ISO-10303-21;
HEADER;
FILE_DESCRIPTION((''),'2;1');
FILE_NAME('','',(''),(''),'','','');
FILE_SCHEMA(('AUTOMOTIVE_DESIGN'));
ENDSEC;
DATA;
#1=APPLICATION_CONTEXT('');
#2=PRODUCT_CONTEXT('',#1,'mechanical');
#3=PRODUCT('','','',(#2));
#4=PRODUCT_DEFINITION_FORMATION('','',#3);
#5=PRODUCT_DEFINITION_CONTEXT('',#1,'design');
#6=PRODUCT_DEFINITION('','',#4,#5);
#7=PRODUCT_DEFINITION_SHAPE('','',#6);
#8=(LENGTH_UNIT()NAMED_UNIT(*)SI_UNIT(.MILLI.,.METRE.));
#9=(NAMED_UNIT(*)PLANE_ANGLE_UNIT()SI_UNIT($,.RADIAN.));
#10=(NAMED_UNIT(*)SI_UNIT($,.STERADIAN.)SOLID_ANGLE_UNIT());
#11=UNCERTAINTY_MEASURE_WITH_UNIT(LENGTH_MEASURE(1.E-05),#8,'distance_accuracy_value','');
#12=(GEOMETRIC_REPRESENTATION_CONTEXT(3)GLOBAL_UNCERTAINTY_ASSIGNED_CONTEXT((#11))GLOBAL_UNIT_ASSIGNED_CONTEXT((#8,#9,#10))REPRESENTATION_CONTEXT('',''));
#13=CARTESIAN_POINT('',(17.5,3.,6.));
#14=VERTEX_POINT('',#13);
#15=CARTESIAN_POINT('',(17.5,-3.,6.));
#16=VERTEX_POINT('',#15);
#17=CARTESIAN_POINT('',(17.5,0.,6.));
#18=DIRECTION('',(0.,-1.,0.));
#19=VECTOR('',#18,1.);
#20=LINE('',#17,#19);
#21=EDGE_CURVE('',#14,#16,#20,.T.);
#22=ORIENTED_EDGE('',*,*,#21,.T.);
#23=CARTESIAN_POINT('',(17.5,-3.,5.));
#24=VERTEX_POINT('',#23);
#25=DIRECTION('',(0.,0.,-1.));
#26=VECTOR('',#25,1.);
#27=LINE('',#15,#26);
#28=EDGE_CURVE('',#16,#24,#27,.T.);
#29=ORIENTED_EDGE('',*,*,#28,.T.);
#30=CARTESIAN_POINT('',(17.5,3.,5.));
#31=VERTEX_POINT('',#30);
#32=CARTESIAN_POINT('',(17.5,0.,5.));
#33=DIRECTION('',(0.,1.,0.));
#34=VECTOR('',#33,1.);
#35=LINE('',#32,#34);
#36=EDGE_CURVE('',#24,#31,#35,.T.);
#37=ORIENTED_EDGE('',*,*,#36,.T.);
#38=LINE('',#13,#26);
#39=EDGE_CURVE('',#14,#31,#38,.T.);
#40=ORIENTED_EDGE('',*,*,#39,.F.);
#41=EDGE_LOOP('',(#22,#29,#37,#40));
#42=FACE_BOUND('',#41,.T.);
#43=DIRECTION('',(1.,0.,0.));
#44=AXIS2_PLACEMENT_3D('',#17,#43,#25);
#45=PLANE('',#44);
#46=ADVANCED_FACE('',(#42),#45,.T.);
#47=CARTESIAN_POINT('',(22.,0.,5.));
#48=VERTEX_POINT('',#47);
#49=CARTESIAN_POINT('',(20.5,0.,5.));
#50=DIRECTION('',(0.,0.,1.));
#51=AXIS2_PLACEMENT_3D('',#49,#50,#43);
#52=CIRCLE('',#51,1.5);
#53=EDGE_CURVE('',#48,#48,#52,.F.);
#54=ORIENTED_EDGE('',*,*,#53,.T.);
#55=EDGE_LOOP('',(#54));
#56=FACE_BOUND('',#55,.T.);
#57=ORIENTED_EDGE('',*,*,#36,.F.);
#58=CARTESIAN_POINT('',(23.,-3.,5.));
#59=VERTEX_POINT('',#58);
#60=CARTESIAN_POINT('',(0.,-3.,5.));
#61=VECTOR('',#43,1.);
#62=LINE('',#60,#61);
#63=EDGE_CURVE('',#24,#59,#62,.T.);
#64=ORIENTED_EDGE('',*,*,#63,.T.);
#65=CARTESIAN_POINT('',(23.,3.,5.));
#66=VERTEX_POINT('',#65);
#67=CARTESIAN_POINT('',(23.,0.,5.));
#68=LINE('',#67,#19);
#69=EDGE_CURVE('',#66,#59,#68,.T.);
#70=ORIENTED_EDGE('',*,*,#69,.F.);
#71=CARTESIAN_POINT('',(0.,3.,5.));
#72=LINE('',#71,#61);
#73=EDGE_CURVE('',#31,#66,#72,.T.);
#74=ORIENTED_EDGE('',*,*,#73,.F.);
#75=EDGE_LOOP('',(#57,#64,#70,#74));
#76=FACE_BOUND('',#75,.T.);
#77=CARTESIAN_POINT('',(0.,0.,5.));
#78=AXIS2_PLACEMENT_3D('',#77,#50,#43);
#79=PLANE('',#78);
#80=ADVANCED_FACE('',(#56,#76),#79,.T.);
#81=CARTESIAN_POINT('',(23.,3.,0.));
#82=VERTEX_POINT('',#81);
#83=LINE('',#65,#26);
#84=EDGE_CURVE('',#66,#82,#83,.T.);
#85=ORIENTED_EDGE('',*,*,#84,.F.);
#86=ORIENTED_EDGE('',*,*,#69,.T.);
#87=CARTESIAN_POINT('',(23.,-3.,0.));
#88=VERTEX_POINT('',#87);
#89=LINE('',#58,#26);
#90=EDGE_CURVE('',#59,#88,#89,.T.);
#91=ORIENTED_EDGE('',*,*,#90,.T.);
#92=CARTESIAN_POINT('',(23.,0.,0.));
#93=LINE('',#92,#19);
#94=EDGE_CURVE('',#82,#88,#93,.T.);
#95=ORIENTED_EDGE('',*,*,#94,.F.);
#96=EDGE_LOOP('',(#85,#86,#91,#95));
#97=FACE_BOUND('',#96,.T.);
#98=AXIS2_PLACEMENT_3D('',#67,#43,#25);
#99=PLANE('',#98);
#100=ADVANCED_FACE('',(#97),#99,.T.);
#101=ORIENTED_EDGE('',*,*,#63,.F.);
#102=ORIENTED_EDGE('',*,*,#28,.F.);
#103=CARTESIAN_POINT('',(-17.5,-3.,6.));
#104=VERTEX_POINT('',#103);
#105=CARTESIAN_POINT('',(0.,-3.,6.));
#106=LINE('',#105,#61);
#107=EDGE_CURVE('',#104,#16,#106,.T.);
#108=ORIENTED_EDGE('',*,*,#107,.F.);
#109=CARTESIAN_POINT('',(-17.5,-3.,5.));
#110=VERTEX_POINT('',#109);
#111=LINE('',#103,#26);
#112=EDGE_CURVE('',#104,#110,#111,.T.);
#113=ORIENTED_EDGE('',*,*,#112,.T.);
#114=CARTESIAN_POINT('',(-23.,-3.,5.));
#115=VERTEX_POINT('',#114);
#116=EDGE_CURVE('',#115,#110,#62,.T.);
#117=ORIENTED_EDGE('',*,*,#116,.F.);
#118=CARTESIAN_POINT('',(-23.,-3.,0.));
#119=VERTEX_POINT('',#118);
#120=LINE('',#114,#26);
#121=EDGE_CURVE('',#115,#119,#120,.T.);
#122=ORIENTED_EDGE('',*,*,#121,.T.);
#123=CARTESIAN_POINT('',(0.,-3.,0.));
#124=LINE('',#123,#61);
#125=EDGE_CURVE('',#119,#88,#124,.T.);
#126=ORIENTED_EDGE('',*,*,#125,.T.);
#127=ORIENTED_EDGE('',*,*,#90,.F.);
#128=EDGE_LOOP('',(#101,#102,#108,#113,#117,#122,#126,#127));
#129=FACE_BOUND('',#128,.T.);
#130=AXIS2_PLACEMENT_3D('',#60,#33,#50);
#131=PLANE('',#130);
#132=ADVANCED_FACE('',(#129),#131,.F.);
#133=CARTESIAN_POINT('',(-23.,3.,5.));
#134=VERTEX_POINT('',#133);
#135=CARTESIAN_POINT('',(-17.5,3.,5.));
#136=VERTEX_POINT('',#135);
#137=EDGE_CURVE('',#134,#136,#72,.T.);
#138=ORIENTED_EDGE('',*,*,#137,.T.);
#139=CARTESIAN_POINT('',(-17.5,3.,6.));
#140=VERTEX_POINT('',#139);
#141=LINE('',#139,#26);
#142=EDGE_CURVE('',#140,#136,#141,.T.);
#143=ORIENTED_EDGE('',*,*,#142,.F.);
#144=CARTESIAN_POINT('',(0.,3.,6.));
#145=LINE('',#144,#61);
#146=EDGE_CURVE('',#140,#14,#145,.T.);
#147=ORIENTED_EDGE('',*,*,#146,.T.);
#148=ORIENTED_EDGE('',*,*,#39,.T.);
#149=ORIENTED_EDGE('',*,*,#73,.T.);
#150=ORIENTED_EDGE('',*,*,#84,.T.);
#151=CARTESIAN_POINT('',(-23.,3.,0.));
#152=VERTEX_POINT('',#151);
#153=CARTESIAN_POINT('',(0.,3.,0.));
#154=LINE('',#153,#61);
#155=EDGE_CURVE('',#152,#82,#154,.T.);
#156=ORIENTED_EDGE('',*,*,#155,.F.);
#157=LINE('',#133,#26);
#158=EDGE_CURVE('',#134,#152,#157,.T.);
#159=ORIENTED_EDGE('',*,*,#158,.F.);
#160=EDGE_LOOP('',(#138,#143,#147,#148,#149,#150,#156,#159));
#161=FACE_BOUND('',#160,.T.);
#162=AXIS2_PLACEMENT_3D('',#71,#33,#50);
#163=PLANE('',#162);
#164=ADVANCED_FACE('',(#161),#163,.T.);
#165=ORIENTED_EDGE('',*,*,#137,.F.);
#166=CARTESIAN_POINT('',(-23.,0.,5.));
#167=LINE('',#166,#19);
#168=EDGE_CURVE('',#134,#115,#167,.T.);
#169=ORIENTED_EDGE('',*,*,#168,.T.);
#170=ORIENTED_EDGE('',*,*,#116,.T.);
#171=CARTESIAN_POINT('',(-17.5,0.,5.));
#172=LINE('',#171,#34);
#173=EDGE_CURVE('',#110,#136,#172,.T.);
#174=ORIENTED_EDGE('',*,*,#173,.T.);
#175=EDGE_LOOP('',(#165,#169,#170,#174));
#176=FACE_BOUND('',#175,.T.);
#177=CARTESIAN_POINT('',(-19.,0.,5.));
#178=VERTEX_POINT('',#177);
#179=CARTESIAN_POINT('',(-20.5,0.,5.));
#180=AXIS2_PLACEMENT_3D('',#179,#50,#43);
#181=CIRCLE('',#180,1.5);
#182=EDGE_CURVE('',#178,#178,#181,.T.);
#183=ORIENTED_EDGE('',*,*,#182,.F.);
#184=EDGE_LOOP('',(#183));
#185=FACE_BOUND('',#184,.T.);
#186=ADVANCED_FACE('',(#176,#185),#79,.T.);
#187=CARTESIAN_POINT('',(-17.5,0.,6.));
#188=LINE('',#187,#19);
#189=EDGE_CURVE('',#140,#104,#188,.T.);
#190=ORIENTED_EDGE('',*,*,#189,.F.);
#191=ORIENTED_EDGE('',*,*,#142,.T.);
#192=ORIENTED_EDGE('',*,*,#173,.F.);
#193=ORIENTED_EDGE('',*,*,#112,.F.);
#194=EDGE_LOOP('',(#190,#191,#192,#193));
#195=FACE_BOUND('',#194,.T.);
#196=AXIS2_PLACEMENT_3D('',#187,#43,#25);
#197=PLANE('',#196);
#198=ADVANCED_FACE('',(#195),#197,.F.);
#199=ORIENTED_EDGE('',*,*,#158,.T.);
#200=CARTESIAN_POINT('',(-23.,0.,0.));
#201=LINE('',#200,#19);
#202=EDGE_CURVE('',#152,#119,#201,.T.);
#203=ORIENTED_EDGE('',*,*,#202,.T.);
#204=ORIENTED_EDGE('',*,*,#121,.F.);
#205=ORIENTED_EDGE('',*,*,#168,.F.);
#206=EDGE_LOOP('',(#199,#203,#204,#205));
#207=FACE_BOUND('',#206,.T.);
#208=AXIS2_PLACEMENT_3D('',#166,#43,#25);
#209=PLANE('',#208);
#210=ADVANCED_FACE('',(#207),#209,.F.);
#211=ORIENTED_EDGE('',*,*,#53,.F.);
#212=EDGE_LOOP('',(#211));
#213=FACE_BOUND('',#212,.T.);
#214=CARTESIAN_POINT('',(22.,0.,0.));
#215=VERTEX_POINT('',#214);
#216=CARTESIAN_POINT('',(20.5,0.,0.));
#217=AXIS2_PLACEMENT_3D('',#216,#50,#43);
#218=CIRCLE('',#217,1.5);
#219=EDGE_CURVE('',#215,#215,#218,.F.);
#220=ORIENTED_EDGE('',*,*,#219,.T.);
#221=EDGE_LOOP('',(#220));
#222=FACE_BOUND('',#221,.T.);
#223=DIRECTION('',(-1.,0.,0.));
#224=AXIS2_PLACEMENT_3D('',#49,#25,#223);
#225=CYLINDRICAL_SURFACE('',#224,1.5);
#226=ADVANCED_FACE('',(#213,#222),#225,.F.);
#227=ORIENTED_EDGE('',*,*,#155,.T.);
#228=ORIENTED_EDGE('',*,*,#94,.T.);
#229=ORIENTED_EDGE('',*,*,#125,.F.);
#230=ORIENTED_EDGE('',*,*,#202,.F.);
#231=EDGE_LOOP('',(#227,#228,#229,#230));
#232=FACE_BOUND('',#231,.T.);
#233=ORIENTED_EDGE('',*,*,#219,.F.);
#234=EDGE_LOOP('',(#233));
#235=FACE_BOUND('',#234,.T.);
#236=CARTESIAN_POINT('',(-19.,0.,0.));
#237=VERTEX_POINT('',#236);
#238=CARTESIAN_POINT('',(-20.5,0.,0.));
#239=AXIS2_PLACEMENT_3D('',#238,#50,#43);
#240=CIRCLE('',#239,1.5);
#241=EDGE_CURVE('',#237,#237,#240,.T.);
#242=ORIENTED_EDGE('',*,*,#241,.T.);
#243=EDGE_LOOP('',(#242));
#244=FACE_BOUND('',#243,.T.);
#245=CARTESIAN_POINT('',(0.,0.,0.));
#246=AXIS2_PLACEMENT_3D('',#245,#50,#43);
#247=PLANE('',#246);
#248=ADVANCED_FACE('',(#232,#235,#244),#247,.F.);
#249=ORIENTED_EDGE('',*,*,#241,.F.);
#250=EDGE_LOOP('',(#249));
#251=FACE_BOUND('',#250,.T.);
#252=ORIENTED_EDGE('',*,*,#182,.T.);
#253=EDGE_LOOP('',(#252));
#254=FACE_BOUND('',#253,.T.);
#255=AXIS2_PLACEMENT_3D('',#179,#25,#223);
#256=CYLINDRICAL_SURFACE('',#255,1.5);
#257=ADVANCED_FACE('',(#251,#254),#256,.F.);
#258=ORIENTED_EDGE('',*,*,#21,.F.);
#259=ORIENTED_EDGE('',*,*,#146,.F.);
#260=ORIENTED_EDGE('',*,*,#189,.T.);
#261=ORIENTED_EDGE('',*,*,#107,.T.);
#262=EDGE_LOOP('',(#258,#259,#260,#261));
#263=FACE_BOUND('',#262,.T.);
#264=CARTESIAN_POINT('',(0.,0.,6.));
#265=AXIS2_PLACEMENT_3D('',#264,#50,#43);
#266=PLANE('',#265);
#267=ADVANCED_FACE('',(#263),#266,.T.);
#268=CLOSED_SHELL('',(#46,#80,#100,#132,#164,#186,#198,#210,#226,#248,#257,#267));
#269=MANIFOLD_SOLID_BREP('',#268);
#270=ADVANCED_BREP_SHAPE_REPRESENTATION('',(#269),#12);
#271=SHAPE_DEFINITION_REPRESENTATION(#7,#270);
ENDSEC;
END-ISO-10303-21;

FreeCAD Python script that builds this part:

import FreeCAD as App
import Part
import Sketcher

doc = App.newDocument("Part")
body = doc.addObject("PartDesign::Body", "Body")

# Sketch on XY plane
sketch1 = body.newObject("Sketcher::SketchObject", "Sketch")
sketch1.AttachmentSupport = (doc.getObject("XY_Plane"), [""])
sketch1.MapMode = "FlatFace"
sketch1.addGeometry(Part.LineSegment(App.Vector(-23, 3, 0), App.Vector(-23, -3, 0)), False)
sketch1.addGeometry(Part.LineSegment(App.Vector(-23, -3, 0), App.Vector(23, -3, 0)), False)
sketch1.addGeometry(Part.LineSegment(App.Vector(23, -3, 0), App.Vector(23, 3, 0)), False)
sketch1.addGeometry(Part.LineSegment(App.Vector(23, 3, 0), App.Vector(-23, 3, 0)), False)
sketch1.addGeometry(Part.Circle(App.Vector(-20.5, 0, 0), App.Vector(0, 0, 1), 1.5), False)
sketch1.addGeometry(Part.Circle(App.Vector(20.5, 0, 0), App.Vector(0, 0, 1), 1.5), False)
sketch1.addConstraint(Sketcher.Constraint("Coincident", 0, 2, 1, 1))
sketch1.addConstraint(Sketcher.Constraint("Coincident", 1, 2, 2, 1))
sketch1.addConstraint(Sketcher.Constraint("Coincident", 2, 2, 3, 1))
sketch1.addConstraint(Sketcher.Constraint("Coincident", 3, 2, 0, 1))
sketch1.addConstraint(Sketcher.Constraint("Vertical", 0))
sketch1.addConstraint(Sketcher.Constraint("Horizontal", 1))
sketch1.addConstraint(Sketcher.Constraint("Vertical", 2))
sketch1.addConstraint(Sketcher.Constraint("Horizontal", 3))
sketch1.addConstraint(Sketcher.Constraint("Equal", 4, 5))
sketch1.addConstraint(Sketcher.Constraint("Symmetric", 4, 3, 5, 3, -1, 1))
sketch1.addConstraint(Sketcher.Constraint("Symmetric", 0, 2, 2, 2, -1, 1))
sketch1.addConstraint(Sketcher.Constraint("PointOnObject", 4, 3, -1))
sketch1.addConstraint(Sketcher.Constraint("Diameter", 4, 3.0))
sketch1.addConstraint(Sketcher.Constraint("DistanceX", 1, 1, 1, 2, 46.0))
sketch1.addConstraint(Sketcher.Constraint("DistanceY", 0, 2, 0, 1, 6.0))
sketch1.addConstraint(Sketcher.Constraint("DistanceX", 4, 3, 5, 3, 41.0))
pad1 = body.newObject("PartDesign::Pad", "Pad")
pad1.Profile = sketch1
pad1.Length = 5

# Sketch on XY plane
sketch2 = body.newObject("Sketcher::SketchObject", "Sketch001")
sketch2.AttachmentSupport = (doc.getObject("XY_Plane"), [""])
sketch2.MapMode = "FlatFace"
sketch2.addGeometry(Part.LineSegment(App.Vector(-18, 3, 0), App.Vector(-18, -3, 0)), False)
sketch2.addGeometry(Part.LineSegment(App.Vector(-18, -3, 0), App.Vector(18, -3, 0)), False)
sketch2.addGeometry(Part.LineSegment(App.Vector(18, -3, 0), App.Vector(18, 3, 0)), False)
sketch2.addGeometry(Part.LineSegment(App.Vector(18, 3, 0), App.Vector(-18, 3, 0)), False)
sketch2.addConstraint(Sketcher.Constraint("Coincident", 0, 2, 1, 1))
sketch2.addConstraint(Sketcher.Constraint("Coincident", 1, 2, 2, 1))
sketch2.addConstraint(Sketcher.Constraint("Coincident", 2, 2, 3, 1))
sketch2.addConstraint(Sketcher.Constraint("Coincident", 3, 2, 0, 1))
sketch2.addConstraint(Sketcher.Constraint("Vertical", 0))
sketch2.addConstraint(Sketcher.Constraint("Horizontal", 1))
sketch2.addConstraint(Sketcher.Constraint("Vertical", 2))
sketch2.addConstraint(Sketcher.Constraint("Horizontal", 3))
sketch2.addConstraint(Sketcher.Constraint("Symmetric", 0, 2, 2, 2, -1, 1))
sketch2.addConstraint(Sketcher.Constraint("DistanceX", 1, 1, 1, 2, 35.0))
sketch2.addConstraint(Sketcher.Constraint("DistanceY", 0, 2, 0, 1, 6.0))
pad2 = body.newObject("PartDesign::Pad", "Pad001")
pad2.Profile = sketch2
pad2.Length = 6

doc.recompute()
